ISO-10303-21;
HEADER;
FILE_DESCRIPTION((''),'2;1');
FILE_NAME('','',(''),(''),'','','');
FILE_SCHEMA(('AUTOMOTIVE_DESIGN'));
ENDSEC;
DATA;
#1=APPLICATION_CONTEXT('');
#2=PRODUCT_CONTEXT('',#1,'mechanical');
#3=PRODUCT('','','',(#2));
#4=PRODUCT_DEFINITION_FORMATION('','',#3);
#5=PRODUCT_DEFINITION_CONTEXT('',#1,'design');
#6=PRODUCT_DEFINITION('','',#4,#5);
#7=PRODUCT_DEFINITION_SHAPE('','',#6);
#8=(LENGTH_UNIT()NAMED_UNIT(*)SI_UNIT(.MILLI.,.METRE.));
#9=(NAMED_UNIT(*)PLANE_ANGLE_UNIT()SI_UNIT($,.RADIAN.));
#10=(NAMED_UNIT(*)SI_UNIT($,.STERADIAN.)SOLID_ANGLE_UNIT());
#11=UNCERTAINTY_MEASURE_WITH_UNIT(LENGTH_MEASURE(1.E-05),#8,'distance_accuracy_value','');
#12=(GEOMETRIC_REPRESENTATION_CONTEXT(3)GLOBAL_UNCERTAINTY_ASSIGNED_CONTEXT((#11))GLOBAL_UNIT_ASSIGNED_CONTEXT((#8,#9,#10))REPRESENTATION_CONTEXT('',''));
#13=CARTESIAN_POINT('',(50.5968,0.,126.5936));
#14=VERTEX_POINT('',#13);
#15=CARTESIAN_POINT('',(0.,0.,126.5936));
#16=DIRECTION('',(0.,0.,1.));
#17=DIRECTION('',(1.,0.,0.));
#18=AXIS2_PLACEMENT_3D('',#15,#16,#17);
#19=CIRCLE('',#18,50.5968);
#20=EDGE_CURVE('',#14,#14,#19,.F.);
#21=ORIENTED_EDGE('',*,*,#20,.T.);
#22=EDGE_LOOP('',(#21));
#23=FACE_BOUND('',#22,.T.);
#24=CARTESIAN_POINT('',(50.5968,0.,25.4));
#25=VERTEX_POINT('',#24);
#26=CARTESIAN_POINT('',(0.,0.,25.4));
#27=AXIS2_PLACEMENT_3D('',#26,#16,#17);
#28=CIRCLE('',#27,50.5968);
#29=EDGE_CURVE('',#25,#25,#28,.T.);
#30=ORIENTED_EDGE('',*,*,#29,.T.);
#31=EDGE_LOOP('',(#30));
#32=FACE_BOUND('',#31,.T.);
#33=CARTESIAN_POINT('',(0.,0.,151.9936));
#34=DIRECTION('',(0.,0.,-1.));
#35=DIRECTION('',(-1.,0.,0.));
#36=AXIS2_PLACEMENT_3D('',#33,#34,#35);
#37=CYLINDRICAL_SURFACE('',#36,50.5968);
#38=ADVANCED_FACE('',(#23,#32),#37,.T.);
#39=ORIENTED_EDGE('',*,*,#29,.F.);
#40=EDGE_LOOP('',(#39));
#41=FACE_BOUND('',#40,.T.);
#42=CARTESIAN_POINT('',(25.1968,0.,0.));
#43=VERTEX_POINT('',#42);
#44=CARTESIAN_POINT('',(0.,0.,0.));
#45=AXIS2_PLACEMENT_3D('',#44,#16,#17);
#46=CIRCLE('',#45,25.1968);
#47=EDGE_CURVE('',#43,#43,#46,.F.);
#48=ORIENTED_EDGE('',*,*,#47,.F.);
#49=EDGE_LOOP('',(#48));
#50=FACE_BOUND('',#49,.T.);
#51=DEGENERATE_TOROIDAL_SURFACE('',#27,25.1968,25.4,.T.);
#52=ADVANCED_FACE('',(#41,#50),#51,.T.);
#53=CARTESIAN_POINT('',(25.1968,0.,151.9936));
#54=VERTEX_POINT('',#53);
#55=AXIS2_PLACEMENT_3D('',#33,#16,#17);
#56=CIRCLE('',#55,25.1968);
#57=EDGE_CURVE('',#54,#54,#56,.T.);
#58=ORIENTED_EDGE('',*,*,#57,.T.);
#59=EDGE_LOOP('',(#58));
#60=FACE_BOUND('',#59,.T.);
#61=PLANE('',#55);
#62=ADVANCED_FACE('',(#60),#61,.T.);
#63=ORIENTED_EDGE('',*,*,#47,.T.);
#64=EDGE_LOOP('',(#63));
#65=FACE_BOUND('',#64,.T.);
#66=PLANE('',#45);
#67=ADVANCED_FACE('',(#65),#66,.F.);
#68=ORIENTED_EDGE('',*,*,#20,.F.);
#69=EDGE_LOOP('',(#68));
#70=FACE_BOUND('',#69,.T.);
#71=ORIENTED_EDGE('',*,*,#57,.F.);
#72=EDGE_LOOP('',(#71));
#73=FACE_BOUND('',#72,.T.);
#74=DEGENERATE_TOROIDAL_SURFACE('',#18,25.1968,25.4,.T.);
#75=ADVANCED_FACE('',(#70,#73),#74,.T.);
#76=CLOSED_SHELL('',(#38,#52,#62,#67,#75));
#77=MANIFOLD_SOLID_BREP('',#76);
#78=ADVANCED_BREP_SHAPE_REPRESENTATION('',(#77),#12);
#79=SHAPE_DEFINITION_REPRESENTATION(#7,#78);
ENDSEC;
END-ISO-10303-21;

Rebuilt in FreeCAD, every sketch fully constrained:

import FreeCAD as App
import Part
import Sketcher

V = App.Vector
Q = App.Units.Quantity


def edges_at(feature, points):
    """Names of the edges that pass closest to the given points."""
    edges = feature.Shape.Edges
    near = lambda p: min(range(len(edges)), key=lambda i: edges[i].distToShape(Part.Vertex(*p))[0])
    return sorted({f"Edge{near(p) + 1}" for p in points})

doc = App.newDocument("Part")
body = doc.addObject("PartDesign::Body", "Body")

sketch1 = body.newObject("Sketcher::SketchObject", "Sketch")
sketch1.AttachmentSupport = (doc.getObject("XY_Plane"), [""])
sketch1.MapMode = "FlatFace"
sketch1.addGeometry(Part.Circle(V(0, 0, 0), V(0, 0, 1), 50.5968), False)
sketch1.addConstraint(Sketcher.Constraint("Coincident", 0, 3, -1, 1))
sketch1.addConstraint(Sketcher.Constraint("Diameter", 0, Q("3.984 in")))
pad1 = body.newObject("PartDesign::Pad", "Pad")
pad1.Profile = sketch1
pad1.Length = Q("5.984 in")
doc.recompute()

fillet = body.newObject("PartDesign::Fillet", "Fillet")
fillet.Base = (pad1, edges_at(pad1, [(-50.597, 0, 0), (-50.597, 0, 151.994)]))
fillet.Radius = Q("1 in")

doc.recompute()
